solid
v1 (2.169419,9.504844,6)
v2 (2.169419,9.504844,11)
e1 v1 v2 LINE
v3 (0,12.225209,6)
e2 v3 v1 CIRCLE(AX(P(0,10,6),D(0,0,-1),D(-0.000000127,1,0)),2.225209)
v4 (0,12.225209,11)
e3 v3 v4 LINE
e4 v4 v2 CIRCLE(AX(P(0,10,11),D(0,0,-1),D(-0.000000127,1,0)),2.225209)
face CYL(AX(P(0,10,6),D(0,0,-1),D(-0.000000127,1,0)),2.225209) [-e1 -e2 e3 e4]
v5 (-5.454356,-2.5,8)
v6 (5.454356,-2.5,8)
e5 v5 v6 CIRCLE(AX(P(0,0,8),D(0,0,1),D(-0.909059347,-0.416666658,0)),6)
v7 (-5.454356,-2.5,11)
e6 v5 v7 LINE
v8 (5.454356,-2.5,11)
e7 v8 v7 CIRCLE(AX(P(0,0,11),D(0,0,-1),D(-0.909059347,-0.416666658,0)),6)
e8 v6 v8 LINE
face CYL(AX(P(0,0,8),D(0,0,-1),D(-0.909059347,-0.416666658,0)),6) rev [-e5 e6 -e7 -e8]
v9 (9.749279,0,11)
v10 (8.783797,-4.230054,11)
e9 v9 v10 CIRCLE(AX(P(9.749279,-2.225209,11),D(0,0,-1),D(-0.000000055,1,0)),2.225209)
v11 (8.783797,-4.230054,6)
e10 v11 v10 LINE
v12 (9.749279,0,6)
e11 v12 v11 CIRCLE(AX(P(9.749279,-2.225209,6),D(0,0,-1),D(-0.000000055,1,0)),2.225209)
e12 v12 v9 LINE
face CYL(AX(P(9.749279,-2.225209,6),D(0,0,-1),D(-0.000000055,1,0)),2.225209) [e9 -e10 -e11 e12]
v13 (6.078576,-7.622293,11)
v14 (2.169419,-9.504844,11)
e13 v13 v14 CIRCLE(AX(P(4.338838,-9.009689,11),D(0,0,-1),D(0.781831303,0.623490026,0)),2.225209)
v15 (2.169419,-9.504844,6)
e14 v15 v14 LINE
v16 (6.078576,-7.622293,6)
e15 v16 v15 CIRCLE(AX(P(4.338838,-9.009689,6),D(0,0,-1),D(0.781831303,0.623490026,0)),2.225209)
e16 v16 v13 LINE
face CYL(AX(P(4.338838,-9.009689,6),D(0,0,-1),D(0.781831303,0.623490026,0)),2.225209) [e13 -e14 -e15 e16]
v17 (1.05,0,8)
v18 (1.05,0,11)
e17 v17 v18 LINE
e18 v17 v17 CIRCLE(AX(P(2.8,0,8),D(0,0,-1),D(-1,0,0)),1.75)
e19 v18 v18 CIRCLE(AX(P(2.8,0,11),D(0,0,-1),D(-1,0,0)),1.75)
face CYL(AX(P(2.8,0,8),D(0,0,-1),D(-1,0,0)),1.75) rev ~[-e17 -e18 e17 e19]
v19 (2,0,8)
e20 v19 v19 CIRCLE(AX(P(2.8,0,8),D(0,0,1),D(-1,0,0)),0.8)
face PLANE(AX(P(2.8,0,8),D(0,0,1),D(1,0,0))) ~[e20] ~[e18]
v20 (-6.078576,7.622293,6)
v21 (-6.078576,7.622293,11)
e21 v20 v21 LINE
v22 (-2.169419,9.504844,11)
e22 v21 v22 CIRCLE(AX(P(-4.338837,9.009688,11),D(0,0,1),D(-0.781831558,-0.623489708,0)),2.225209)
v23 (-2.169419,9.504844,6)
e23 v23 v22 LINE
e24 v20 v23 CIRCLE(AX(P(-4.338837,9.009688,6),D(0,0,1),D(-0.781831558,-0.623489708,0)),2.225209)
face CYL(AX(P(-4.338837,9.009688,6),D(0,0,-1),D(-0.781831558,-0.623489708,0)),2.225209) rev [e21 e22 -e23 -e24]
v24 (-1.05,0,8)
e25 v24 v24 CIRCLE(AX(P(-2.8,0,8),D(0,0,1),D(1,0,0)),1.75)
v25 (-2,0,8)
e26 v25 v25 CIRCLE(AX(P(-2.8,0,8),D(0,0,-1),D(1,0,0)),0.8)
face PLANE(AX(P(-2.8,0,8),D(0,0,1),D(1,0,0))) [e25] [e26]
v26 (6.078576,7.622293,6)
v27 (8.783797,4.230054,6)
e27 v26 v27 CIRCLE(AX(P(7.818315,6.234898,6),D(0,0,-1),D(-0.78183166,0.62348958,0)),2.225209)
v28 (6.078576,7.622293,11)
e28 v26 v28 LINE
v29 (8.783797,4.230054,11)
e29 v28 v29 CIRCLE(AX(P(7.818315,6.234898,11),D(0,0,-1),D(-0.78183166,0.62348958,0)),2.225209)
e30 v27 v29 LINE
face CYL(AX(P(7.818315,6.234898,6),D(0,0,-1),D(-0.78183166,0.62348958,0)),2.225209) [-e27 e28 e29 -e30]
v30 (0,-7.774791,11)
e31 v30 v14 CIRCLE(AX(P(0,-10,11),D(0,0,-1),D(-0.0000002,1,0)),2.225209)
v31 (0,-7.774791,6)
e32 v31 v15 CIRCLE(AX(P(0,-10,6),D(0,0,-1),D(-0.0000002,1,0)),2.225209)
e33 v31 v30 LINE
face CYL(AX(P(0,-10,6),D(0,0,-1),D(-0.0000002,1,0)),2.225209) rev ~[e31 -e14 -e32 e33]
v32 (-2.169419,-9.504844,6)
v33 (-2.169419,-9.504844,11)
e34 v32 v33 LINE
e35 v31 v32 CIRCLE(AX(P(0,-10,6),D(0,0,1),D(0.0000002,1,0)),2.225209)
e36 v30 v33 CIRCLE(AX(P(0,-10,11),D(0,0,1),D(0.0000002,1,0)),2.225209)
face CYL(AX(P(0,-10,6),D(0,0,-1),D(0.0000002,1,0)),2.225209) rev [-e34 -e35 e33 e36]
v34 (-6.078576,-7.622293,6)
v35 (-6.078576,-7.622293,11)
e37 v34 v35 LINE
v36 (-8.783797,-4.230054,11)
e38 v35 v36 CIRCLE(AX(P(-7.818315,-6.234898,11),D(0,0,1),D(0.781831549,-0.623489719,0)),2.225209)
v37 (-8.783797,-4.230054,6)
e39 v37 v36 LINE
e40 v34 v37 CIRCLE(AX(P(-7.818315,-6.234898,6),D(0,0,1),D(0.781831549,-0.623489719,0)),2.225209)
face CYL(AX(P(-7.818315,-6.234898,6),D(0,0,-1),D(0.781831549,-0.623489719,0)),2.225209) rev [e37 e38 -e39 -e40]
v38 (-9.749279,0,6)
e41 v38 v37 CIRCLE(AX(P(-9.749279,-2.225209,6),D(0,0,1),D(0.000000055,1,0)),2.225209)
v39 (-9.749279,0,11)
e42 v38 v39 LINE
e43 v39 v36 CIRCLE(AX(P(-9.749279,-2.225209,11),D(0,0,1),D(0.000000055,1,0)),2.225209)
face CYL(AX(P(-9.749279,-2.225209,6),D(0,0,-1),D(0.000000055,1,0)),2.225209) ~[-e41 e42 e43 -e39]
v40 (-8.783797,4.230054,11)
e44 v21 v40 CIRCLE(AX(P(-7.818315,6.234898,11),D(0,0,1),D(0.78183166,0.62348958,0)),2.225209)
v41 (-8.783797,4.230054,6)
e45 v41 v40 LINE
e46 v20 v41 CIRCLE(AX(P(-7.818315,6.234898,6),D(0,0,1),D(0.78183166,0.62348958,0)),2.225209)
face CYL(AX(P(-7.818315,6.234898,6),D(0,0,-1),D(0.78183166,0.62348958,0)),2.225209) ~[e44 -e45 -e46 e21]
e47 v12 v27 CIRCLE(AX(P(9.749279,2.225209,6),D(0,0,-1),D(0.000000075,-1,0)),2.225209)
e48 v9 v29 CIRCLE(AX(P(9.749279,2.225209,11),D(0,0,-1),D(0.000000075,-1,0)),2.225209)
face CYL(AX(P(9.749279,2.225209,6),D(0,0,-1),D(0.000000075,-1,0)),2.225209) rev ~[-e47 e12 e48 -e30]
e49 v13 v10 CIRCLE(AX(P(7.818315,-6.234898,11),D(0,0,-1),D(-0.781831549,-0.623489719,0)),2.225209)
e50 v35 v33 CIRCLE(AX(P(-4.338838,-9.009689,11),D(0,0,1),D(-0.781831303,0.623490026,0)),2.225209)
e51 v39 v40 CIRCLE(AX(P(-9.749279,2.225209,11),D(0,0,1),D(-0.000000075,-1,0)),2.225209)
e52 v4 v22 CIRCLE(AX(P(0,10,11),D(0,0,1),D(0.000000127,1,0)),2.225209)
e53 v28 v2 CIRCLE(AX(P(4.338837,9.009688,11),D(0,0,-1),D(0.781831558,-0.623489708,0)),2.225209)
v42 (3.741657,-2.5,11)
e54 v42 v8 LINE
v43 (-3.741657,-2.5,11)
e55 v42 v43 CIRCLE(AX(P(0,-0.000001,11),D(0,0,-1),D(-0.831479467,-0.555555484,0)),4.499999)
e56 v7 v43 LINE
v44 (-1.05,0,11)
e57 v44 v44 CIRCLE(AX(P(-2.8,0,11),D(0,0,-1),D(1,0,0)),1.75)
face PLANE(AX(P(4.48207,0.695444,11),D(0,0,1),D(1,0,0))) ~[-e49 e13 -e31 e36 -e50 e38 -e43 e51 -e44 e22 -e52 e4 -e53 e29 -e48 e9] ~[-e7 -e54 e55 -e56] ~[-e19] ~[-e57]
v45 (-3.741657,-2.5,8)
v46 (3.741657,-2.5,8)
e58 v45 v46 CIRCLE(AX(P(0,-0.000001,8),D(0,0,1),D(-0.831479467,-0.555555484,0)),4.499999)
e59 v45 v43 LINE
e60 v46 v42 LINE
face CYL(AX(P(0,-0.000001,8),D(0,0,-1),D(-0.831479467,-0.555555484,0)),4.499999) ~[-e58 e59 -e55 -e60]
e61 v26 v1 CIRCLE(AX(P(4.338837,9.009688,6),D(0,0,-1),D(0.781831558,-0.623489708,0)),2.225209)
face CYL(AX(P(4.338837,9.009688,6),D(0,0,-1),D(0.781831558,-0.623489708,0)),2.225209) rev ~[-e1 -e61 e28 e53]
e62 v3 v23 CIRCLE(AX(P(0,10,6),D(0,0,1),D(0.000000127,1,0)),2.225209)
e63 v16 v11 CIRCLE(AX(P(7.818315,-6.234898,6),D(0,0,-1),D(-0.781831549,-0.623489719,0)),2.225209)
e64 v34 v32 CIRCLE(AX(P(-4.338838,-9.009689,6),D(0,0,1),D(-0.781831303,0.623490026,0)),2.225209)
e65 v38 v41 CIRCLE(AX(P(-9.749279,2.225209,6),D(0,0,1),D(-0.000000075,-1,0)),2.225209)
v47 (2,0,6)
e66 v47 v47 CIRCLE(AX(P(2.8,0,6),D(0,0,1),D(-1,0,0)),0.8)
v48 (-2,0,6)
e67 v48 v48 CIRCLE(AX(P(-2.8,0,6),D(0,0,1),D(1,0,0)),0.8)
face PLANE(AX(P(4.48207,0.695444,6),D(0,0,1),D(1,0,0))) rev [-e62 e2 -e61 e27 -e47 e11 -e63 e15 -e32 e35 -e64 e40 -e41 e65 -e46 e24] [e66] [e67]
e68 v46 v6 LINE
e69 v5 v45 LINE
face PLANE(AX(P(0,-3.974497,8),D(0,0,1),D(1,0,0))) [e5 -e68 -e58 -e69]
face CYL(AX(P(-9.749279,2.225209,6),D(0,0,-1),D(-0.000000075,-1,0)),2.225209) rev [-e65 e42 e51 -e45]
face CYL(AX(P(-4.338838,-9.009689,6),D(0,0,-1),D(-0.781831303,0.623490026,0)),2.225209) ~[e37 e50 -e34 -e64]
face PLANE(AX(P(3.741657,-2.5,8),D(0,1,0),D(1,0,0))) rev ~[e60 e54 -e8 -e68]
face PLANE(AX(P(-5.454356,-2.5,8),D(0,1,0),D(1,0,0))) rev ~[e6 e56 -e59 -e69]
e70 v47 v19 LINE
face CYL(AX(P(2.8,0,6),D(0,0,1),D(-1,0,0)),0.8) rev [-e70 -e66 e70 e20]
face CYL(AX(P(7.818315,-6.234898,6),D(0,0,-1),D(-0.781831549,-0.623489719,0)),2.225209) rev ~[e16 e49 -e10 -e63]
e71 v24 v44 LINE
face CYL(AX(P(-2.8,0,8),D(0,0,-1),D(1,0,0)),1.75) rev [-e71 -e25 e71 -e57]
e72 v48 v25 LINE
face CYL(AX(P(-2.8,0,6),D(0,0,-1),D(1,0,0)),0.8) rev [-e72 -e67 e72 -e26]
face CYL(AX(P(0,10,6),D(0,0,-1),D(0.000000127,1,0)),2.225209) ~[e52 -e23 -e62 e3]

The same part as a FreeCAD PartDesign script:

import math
import FreeCAD as App
import Part
import Sketcher
from FreeCAD import Vector

doc = App.newDocument("Part")
body = doc.addObject("PartDesign::Body", "Body")

# Sketch on XY plane
sketch1 = body.newObject("Sketcher::SketchObject", "Sketch")
sketch1.AttachmentSupport = (doc.getObject("XY_Plane"), [""])
sketch1.MapMode = "FlatFace"
sketch1.AttachmentOffset = App.Placement(Vector(0, 0, 6), App.Rotation())
sketch1.addGeometry([
    Part.ArcOfCircle(Part.Circle(Vector(0, 10, 0), Vector(0, 0, 1), 2.2), math.radians(90), math.radians(193)),  # 0
    Part.ArcOfCircle(Part.Circle(Vector(-4.3, 9, 0), Vector(0, 0, 1), 2.2), math.radians(-141), math.radians(13)),  # 1
    Part.ArcOfCircle(Part.Circle(Vector(-7.8, 6.2, 0), Vector(0, 0, 1), 2.2), math.radians(39), math.radians(244)),  # 2
    Part.ArcOfCircle(Part.Circle(Vector(-9.7, 2.2, 0), Vector(0, 0, 1), 2.2), math.radians(-90), math.radians(64)),  # 3
    Part.ArcOfCircle(Part.Circle(Vector(-9.7, -2.2, 0), Vector(0, 0, 1), 2.2), math.radians(90), math.radians(296)),  # 4
    Part.ArcOfCircle(Part.Circle(Vector(-7.8, -6.2, 0), Vector(0, 0, 1), 2.2), math.radians(-39), math.radians(116)),  # 5
    Part.ArcOfCircle(Part.Circle(Vector(-4.3, -9, 0), Vector(0, 0, 1), 2.2), math.radians(141), math.radians(347)),  # 6
    Part.ArcOfCircle(Part.Circle(Vector(0, -10, 0), Vector(0, 0, 1), 2.2), math.radians(90), math.radians(167)),  # 7
    Part.LineSegment(Vector(0, -7.8, 0), Vector(0, 12.2, 0)),  # 8
], False)
sketch1.addConstraint([
    Sketcher.Constraint("Tangent", 0, 2, 1, 2),
    Sketcher.Constraint("Tangent", 1, 1, 2, 1),
    Sketcher.Constraint("Tangent", 2, 2, 3, 2),
    Sketcher.Constraint("Tangent", 3, 1, 4, 1),
    Sketcher.Constraint("Tangent", 4, 2, 5, 2),
    Sketcher.Constraint("Tangent", 5, 1, 6, 1),
    Sketcher.Constraint("Tangent", 6, 2, 7, 2),
    Sketcher.Constraint("Coincident", 7, 1, 8, 1),
    Sketcher.Constraint("Coincident", 8, 2, 0, 1),
    Sketcher.Constraint("Vertical", 8),
    Sketcher.Constraint("Equal", 0, 1),
    Sketcher.Constraint("Equal", 1, 2),
    Sketcher.Constraint("Equal", 2, 3),
    Sketcher.Constraint("Equal", 3, 4),
    Sketcher.Constraint("Equal", 4, 5),
    Sketcher.Constraint("Equal", 5, 6),
    Sketcher.Constraint("Equal", 6, 7),
    Sketcher.Constraint("Symmetric", 0, 3, 7, 3, -1, 1),
    Sketcher.Constraint("Symmetric", 3, 3, 4, 3, -1),
    Sketcher.Constraint("Symmetric", 1, 3, 6, 3, -1),
    Sketcher.Constraint("PointOnObject", 7, 1, -2),
    Sketcher.Constraint("DistanceY", 8, 1, 8, 2, 20.0),
    Sketcher.Constraint("Radius", 0, 2.225209),
    Sketcher.Constraint("DistanceY", -1, 1, 2, 3, 6.234898),
    Sketcher.Constraint("DistanceY", 6, 3, 3, 3, 11.234898),
])
pad1 = body.newObject("PartDesign::Pad", "Pad")
pad1.Profile = sketch1
pad1.Length = 5
doc.recompute()

mirrored = body.newObject("PartDesign::Mirrored", "Mirrored")
mirrored.Originals = [pad1]
mirrored.MirrorPlane = (doc.getObject("YZ_Plane"), [""])
body.Tip = mirrored

# Sketch on XY plane
sketch2 = body.newObject("Sketcher::SketchObject", "Sketch001")
sketch2.AttachmentSupport = (doc.getObject("XY_Plane"), [""])
sketch2.MapMode = "FlatFace"
sketch2.AttachmentOffset = App.Placement(Vector(0, 0, 6), App.Rotation())
sketch2.addGeometry(Part.Circle(Vector(-2.8, 0, 0), Vector(0, 0, 1), 0.8), False)
sketch2.addConstraint([
    Sketcher.Constraint("PointOnObject", 0, 3, -1),
    Sketcher.Constraint("Diameter", 0, 1.6),
    Sketcher.Constraint("DistanceX", 0, 3, -1, 1, 2.8),
])
pocket1 = body.newObject("PartDesign::Pocket", "Pocket")
pocket1.Profile = sketch2
pocket1.Type = "ThroughAll"
pocket1.Midplane = True

# Sketch on XY plane
sketch3 = body.newObject("Sketcher::SketchObject", "Sketch002")
sketch3.AttachmentSupport = (doc.getObject("XY_Plane"), [""])
sketch3.MapMode = "FlatFace"
sketch3.AttachmentOffset = App.Placement(Vector(0, 0, 8), App.Rotation())
sketch3.addGeometry(Part.Circle(Vector(-2.8, 0, 0), Vector(0, 0, 1), 1.8), False)
sketch3.addConstraint([
    Sketcher.Constraint("PointOnObject", 0, 3, -1),
    Sketcher.Constraint("Diameter", 0, 3.5),
    Sketcher.Constraint("DistanceX", 0, 3, -1, 1, 2.8),
])
pocket2 = body.newObject("PartDesign::Pocket", "Pocket001")
pocket2.Profile = sketch3
pocket2.Type = "ThroughAll"
pocket2.Reversed = True
doc.recompute()

mirrored2 = body.newObject("PartDesign::Mirrored", "Mirrored001")
mirrored2.Originals = [pocket1, pocket2]
mirrored2.MirrorPlane = (doc.getObject("YZ_Plane"), [""])
body.Tip = mirrored2

# Sketch on XY plane
sketch4 = body.newObject("Sketcher::SketchObject", "Sketch003")
sketch4.AttachmentSupport = (doc.getObject("XY_Plane"), [""])
sketch4.MapMode = "FlatFace"
sketch4.AttachmentOffset = App.Placement(Vector(0, 0, 8), App.Rotation())
sketch4.addGeometry([
    Part.ArcOfCircle(Part.Circle(Vector(0, 0, 0), Vector(0, 0, 1), 6), math.radians(-155), math.radians(-25)),
    Part.LineSegment(Vector(5.5, -2.5, 0), Vector(3.7, -2.5, 0)),
    Part.ArcOfCircle(Part.Circle(Vector(0, 0, 0), Vector(0, 0, 1), 4.5), math.radians(-146), math.radians(-34)),
    Part.LineSegment(Vector(-3.7, -2.5, 0), Vector(-5.5, -2.5, 0)),
], False)
sketch4.addConstraint([
    Sketcher.Constraint("Coincident", 0, 2, 1, 1),
    Sketcher.Constraint("Coincident", 1, 2, 2, 2),
    Sketcher.Constraint("Coincident", 2, 1, 3, 1),
    Sketcher.Constraint("Coincident", 3, 2, 0, 1),
    Sketcher.Constraint("Horizontal", 1),
    Sketcher.Constraint("Horizontal", 3),
    Sketcher.Constraint("Coincident", 0, 3, -1, 1),
    Sketcher.Constraint("Coincident", 2, 3, -1, 1),
    Sketcher.Constraint("Horizontal", 1, 2, 2, 1),
    Sketcher.Constraint("Radius", 0, 6.0),
    Sketcher.Constraint("Radius", 2, 4.499999),
    Sketcher.Constraint("DistanceY", 0, 2, -1, 1, 2.5),
])
pocket3 = body.newObject("PartDesign::Pocket", "Pocket002")
pocket3.Profile = sketch4
pocket3.Length = 5
pocket3.Reversed = True

doc.recompute()
